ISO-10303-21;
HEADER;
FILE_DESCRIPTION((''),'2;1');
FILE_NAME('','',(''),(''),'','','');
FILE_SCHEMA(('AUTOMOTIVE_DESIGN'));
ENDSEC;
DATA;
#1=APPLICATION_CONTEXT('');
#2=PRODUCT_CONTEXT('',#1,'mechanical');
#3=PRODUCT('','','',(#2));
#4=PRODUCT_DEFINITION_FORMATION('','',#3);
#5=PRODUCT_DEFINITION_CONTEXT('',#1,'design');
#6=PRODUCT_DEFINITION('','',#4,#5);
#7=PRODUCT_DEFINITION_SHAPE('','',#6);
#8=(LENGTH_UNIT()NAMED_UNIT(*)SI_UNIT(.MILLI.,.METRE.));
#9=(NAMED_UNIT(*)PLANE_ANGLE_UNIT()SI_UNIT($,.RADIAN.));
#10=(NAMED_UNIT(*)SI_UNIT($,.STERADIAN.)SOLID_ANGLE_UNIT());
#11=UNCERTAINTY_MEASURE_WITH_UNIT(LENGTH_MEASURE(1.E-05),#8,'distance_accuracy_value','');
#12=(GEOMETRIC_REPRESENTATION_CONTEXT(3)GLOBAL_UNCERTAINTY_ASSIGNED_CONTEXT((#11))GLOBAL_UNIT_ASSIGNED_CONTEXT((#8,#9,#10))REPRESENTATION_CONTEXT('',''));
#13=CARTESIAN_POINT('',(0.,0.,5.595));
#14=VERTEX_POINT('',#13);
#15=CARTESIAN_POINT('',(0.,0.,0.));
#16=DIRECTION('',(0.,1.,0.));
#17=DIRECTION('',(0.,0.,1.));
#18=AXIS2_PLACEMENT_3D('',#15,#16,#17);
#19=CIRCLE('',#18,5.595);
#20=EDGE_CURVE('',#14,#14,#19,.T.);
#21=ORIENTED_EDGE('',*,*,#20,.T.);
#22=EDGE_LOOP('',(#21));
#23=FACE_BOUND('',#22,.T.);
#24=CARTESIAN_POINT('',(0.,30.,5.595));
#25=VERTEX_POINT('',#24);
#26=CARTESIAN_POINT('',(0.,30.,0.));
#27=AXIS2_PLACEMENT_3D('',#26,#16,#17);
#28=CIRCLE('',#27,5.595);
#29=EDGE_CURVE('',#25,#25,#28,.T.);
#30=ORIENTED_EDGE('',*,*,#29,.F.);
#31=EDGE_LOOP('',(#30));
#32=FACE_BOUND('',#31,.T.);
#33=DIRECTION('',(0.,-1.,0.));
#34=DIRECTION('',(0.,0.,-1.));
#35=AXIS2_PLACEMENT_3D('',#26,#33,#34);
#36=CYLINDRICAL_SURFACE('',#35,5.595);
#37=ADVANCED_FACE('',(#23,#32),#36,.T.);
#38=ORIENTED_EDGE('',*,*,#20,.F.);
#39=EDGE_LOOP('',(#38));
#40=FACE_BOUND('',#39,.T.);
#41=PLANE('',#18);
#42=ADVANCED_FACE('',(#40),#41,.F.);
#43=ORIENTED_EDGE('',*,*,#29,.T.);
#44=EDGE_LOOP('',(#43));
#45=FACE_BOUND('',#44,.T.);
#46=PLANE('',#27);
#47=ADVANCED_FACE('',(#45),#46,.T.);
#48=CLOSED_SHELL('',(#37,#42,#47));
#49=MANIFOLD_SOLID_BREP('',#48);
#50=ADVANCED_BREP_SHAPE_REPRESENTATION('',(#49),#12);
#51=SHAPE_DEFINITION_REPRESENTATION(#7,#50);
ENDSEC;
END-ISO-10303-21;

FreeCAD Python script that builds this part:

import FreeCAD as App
import Part
import Sketcher
Q = App.Units.Quantity

doc = App.newDocument("Part")
body = doc.addObject("PartDesign::Body", "Body")

# Sketch on XZ plane
sketch1 = body.newObject("Sketcher::SketchObject", "Sketch")
sketch1.AttachmentSupport = (doc.getObject("XZ_Plane"), [""])
sketch1.MapMode = "FlatFace"
sketch1.addGeometry(Part.Circle(App.Vector(0, 0, 0), App.Vector(0, 0, 1), 6), False)
sketch1.addConstraint([
    Sketcher.Constraint("Coincident", 0, 3, -1, 1),
    Sketcher.Constraint("Diameter", 0, Q("11.19 mm")),
])
pad1 = body.newObject("PartDesign::Pad", "Pad")
pad1.Profile = sketch1
pad1.Length = 30
pad1.Reversed = True

doc.recompute()
